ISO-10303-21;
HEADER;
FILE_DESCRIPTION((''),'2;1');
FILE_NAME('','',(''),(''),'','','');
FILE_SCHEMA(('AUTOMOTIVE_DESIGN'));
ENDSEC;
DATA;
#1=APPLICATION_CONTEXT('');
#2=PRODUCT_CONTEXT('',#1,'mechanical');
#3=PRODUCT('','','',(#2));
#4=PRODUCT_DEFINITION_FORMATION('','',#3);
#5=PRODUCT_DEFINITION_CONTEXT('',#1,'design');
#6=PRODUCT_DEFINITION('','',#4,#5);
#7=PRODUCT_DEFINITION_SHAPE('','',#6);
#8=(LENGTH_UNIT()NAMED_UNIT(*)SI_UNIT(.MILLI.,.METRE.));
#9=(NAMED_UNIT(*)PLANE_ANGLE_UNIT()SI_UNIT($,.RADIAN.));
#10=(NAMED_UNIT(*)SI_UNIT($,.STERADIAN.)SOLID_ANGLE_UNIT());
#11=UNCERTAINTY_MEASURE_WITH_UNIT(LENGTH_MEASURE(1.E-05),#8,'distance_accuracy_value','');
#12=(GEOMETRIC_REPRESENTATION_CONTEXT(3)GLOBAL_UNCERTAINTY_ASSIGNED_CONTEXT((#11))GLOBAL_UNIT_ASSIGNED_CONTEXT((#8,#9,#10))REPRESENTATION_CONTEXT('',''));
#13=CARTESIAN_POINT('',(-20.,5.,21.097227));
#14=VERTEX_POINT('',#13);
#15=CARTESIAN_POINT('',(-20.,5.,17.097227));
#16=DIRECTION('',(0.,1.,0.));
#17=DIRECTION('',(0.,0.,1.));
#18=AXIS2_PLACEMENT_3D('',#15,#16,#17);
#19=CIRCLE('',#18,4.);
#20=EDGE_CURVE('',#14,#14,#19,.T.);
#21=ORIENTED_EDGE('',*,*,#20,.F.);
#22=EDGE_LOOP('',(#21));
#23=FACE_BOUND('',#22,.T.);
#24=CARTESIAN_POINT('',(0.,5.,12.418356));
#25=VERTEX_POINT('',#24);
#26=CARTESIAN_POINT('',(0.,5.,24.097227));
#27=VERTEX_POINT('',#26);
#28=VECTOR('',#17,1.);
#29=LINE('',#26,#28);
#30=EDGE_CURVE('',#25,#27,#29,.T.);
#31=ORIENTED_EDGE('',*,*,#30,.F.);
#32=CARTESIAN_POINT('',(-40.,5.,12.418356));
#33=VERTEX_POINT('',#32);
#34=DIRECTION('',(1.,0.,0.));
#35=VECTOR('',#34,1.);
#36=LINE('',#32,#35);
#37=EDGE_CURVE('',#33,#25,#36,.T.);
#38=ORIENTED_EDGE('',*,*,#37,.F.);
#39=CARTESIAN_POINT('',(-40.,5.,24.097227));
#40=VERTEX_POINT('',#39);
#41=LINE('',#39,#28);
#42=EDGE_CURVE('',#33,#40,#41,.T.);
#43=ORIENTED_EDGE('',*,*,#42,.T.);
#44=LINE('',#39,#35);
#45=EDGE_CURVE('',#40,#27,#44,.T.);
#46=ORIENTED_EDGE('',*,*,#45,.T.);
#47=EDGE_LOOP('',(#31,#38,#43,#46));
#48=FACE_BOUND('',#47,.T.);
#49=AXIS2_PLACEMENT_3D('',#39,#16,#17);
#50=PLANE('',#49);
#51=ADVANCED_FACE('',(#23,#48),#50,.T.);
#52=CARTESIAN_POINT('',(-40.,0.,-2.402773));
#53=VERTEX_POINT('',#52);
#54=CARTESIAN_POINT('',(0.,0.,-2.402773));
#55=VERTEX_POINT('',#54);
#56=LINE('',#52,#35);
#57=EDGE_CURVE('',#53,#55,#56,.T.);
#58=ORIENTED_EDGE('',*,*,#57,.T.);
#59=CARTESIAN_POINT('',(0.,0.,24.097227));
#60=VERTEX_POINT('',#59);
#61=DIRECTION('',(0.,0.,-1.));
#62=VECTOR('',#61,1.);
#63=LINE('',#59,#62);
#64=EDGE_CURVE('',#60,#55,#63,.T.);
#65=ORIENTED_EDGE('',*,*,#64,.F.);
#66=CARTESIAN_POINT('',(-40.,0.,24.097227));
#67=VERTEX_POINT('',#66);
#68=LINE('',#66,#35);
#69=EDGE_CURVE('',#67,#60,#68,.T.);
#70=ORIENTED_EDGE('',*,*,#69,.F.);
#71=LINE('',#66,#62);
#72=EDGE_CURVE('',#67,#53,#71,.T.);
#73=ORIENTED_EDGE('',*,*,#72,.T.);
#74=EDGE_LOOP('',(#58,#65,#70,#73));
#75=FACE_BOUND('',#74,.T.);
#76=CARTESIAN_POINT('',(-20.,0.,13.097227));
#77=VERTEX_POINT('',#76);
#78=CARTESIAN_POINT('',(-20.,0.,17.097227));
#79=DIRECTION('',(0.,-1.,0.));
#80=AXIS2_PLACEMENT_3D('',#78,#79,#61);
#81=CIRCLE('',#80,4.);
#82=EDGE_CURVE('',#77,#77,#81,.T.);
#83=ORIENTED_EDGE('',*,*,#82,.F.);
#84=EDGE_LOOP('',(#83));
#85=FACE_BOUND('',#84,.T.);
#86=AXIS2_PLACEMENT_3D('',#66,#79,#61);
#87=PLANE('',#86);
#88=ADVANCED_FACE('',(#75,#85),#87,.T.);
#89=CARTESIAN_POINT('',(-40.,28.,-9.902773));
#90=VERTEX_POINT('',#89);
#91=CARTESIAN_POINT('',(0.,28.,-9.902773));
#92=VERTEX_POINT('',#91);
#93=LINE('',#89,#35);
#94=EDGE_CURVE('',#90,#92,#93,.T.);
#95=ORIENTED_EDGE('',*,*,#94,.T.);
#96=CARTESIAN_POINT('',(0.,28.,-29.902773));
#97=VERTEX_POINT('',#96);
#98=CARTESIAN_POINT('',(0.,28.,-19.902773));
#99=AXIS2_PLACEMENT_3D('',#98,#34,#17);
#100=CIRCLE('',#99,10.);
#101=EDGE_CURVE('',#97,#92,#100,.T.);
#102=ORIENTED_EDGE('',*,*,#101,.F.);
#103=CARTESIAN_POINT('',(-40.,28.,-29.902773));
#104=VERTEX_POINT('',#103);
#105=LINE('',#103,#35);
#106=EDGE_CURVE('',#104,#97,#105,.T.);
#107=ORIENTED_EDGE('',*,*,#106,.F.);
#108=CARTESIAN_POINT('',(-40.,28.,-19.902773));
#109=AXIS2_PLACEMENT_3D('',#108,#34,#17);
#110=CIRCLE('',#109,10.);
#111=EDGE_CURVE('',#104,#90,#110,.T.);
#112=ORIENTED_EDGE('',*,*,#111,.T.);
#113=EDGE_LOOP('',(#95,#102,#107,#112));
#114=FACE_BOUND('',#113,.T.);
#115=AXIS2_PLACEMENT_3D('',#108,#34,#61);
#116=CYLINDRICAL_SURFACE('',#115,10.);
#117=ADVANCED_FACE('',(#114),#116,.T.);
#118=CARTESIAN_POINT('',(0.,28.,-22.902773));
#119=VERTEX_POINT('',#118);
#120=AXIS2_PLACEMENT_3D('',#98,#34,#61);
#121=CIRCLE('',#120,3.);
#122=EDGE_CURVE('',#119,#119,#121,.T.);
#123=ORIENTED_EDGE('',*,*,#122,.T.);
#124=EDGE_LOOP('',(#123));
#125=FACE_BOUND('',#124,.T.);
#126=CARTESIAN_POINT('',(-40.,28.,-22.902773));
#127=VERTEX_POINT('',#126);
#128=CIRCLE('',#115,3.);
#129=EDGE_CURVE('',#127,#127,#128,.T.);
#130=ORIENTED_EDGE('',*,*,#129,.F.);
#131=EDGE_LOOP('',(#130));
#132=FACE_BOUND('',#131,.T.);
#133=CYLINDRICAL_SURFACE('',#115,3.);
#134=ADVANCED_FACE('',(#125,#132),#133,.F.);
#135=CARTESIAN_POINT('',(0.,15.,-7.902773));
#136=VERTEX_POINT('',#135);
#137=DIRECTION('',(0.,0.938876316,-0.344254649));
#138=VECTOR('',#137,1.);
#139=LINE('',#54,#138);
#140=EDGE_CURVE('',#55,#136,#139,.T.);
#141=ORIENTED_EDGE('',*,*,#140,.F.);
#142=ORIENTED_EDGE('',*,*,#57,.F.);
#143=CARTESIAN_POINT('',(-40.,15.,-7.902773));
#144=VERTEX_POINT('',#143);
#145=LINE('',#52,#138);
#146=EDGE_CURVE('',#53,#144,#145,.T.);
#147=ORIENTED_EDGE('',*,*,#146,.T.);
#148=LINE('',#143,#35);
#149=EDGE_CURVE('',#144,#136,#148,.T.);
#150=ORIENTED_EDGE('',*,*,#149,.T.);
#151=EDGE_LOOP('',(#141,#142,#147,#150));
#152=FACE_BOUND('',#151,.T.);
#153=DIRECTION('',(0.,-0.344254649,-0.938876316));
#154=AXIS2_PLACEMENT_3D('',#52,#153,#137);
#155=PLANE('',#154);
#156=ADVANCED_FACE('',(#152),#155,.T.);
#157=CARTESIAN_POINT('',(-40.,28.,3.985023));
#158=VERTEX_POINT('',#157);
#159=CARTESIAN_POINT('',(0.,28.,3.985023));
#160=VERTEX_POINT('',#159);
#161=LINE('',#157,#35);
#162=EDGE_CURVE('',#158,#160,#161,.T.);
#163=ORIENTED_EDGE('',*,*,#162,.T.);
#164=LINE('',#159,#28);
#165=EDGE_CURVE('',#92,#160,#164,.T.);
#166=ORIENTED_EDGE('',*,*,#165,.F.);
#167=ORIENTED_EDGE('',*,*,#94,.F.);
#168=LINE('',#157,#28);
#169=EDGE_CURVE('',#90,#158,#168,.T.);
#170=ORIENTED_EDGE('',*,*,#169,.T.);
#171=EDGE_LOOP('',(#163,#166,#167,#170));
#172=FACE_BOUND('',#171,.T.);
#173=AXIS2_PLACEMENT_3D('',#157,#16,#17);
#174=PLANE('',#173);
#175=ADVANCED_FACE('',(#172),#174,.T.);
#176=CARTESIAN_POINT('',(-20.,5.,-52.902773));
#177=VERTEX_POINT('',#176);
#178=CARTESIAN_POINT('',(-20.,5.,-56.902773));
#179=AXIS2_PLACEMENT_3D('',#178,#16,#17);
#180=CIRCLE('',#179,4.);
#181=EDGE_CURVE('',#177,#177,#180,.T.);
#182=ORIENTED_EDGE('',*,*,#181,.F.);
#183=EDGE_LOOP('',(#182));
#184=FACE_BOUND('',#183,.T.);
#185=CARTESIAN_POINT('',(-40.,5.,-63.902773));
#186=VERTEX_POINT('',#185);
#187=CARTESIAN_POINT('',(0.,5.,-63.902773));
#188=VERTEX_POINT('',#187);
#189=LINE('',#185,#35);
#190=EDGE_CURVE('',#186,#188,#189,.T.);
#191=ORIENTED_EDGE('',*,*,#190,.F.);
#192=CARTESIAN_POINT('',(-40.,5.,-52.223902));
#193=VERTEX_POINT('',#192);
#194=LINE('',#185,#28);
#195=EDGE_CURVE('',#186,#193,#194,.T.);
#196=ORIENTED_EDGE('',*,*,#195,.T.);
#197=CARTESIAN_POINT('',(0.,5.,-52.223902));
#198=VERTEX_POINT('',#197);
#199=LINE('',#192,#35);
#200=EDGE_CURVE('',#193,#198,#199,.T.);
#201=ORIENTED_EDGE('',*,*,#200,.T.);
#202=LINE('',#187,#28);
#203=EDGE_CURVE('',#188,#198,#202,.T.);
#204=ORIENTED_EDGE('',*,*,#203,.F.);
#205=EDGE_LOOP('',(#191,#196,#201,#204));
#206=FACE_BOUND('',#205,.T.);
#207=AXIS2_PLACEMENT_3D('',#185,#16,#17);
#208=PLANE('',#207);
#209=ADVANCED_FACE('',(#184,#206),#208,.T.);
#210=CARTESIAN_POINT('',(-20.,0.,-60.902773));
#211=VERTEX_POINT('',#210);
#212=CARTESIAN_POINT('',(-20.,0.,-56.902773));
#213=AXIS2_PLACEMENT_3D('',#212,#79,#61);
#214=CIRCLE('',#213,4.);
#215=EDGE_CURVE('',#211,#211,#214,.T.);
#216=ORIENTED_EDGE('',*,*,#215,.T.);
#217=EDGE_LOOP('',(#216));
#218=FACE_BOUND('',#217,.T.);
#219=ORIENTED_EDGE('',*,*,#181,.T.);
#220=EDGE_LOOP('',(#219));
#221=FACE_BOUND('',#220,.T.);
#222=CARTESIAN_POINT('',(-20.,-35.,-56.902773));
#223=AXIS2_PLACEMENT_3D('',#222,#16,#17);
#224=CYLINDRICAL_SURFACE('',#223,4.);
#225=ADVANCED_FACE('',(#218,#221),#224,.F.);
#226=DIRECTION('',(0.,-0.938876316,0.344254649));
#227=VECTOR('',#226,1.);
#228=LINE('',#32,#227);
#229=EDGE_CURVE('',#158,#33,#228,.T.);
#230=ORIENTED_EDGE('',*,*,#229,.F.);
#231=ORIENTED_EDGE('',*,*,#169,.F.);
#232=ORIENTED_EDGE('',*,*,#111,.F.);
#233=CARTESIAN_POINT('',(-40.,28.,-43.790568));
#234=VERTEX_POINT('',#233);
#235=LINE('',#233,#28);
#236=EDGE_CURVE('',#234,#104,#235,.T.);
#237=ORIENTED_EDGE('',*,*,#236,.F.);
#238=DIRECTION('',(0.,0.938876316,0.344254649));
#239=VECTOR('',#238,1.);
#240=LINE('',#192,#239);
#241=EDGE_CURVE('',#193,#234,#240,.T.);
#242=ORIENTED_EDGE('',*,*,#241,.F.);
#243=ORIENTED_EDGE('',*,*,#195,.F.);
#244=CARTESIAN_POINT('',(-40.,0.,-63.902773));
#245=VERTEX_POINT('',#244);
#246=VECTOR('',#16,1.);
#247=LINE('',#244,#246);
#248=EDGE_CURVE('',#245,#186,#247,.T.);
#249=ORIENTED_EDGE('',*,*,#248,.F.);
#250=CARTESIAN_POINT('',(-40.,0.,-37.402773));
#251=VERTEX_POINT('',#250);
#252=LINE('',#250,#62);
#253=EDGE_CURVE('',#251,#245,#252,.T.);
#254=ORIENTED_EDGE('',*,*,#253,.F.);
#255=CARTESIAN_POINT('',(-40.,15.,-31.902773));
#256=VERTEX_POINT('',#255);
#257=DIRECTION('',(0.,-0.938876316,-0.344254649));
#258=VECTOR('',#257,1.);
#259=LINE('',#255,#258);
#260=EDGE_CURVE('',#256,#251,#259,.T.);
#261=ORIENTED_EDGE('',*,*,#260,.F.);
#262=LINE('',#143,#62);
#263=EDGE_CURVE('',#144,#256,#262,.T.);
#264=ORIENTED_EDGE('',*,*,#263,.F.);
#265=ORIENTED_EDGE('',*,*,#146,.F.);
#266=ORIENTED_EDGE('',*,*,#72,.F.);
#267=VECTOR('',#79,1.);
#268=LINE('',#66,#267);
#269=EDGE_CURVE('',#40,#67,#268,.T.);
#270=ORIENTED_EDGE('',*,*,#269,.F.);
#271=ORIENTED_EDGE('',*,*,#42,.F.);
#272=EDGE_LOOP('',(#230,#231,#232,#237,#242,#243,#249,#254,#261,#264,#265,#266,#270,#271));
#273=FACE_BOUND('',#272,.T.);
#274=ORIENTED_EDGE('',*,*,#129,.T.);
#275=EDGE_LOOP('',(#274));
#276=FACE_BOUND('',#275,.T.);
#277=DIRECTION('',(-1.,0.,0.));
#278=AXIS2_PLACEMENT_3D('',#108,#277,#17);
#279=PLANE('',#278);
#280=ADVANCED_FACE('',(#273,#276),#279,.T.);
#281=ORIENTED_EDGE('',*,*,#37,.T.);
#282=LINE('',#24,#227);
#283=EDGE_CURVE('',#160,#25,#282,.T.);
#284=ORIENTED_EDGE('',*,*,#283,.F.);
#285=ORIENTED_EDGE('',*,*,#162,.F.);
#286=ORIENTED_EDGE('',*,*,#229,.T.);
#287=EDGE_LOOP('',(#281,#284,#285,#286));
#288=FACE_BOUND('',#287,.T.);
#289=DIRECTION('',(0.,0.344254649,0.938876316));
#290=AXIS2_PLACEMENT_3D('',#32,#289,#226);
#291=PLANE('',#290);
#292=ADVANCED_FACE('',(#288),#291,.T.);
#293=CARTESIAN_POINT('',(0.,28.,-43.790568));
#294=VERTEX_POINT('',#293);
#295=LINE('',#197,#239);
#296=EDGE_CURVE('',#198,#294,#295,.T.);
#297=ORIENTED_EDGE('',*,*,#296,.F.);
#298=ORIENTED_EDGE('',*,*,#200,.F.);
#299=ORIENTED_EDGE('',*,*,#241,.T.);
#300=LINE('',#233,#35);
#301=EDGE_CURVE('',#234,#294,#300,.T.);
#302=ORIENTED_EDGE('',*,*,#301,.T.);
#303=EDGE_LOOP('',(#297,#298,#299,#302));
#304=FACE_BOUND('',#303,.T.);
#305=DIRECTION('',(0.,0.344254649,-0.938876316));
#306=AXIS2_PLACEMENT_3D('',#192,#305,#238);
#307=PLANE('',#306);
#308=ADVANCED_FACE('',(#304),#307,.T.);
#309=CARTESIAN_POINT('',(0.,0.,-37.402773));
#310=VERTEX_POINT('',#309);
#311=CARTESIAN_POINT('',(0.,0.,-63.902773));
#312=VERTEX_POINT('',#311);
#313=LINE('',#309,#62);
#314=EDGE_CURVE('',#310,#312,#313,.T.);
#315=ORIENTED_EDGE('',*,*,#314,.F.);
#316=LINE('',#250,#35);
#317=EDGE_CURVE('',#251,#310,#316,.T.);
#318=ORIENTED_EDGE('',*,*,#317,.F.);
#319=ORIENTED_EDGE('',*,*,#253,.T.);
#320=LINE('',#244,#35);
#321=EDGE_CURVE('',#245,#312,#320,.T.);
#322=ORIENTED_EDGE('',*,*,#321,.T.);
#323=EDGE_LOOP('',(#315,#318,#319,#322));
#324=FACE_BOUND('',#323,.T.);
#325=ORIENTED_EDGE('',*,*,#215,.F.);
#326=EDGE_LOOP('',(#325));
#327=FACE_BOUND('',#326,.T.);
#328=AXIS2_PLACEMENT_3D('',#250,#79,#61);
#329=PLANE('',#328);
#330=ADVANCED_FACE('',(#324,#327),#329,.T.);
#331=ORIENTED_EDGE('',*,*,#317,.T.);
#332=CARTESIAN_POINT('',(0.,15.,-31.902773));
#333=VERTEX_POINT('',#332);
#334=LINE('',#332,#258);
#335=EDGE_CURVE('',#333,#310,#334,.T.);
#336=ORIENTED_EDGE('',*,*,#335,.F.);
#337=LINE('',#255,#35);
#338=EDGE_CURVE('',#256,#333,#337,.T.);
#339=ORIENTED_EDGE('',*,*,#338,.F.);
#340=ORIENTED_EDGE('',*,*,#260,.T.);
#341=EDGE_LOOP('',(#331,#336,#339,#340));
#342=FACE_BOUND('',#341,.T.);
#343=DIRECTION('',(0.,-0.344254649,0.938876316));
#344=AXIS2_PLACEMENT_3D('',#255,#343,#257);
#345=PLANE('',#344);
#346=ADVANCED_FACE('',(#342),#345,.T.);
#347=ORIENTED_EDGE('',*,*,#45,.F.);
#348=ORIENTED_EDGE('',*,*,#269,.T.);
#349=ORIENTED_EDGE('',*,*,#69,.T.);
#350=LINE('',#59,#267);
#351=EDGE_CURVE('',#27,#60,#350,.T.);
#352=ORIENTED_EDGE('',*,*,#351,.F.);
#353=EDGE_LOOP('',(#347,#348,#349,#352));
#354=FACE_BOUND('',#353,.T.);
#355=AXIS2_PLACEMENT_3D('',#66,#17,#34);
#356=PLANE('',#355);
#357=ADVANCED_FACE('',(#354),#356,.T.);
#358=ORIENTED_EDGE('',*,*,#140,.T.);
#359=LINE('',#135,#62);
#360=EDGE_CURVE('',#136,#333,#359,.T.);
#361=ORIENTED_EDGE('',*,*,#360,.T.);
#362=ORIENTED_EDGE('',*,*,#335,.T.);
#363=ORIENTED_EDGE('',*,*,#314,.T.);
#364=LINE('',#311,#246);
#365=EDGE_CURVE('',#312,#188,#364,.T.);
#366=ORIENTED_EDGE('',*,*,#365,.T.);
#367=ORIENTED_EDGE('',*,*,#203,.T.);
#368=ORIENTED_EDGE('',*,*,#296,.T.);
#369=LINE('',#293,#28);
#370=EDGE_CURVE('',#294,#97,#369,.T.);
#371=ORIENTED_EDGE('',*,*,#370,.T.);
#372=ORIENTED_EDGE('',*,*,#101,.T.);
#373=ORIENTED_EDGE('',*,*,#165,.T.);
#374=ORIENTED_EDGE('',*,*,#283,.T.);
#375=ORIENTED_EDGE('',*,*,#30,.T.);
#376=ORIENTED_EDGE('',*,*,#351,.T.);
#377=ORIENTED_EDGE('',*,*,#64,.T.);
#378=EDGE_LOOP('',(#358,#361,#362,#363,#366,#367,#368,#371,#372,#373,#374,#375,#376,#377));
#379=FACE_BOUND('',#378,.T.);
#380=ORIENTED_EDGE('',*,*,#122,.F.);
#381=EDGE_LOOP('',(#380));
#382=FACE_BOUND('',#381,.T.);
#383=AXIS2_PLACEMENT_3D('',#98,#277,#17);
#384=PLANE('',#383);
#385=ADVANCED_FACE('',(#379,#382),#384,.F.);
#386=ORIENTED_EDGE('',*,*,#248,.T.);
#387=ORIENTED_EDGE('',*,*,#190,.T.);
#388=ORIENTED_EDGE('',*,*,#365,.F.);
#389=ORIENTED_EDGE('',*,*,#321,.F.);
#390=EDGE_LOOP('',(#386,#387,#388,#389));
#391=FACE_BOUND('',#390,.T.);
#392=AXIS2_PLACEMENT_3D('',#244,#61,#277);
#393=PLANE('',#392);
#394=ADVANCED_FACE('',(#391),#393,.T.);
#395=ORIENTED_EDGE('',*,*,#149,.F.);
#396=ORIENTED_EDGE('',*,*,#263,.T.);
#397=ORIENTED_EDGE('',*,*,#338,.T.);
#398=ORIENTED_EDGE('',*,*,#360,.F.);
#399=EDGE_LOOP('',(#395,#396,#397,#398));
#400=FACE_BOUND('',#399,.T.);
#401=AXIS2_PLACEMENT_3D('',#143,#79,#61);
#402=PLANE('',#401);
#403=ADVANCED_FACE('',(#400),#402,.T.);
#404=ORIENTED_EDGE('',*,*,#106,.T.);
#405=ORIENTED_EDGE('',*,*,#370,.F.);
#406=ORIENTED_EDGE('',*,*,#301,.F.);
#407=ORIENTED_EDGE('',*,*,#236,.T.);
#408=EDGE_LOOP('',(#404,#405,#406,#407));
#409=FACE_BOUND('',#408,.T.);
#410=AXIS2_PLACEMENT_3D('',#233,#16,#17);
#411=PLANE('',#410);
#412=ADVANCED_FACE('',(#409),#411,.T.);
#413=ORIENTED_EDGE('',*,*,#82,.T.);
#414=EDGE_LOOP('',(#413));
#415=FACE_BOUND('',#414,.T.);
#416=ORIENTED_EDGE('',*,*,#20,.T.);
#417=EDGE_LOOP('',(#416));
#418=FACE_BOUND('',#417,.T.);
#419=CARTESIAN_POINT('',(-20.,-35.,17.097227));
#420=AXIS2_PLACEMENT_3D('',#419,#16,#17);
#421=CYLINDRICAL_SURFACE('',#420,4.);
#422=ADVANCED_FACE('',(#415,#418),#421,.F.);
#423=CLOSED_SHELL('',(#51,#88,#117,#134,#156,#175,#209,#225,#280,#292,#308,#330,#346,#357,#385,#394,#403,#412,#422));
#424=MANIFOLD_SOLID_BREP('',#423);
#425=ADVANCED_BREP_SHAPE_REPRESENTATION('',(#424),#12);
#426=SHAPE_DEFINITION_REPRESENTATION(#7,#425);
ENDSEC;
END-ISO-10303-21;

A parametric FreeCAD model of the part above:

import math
import FreeCAD as App
import Part
import Sketcher

doc = App.newDocument("Part")
params = doc.addObject("Spreadsheet::Sheet", "Params")
for row, (alias, value) in enumerate([
    ("sketch1_diameter", "6 mm"),
    ("sketch1_radius", "10 mm"),
    ("sketch1_width", "5 mm"),
    ("sketch1_height", "24 mm"),
    ("sketch1_height2", "26.5 mm"),
    ("pad1_length", "40 mm"),
    ("sketch2_diameter", "8 mm"),
    ("pocket1_length", "40 mm"),
], start=1):
    params.set(f"A{row}", alias)
    params.set(f"B{row}", "=" + value)
    params.setAlias(f"B{row}", alias)

body = doc.addObject("PartDesign::Body", "Body")

sketch1 = body.newObject("Sketcher::SketchObject", "Sketch")
sketch1.AttachmentSupport = (doc.getObject("YZ_Plane"), [""])
sketch1.MapMode = "FlatFace"
sketch1.addGeometry([
    Part.LineSegment(App.Vector(5, 24.097227, 0), App.Vector(0, 24.097227, 0)),
    Part.LineSegment(App.Vector(0, 24.097227, 0), App.Vector(0, -2.402773, 0)),
    Part.LineSegment(App.Vector(0, -2.402773, 0), App.Vector(15, -7.902773, 0)),
    Part.LineSegment(App.Vector(15, -7.902773, 0), App.Vector(15, -31.902773, 0)),
    Part.LineSegment(App.Vector(15, -31.902773, 0), App.Vector(0, -37.402773, 0)),
    Part.LineSegment(App.Vector(0, -37.402773, 0), App.Vector(0, -63.902773, 0)),
    Part.LineSegment(App.Vector(0, -63.902773, 0), App.Vector(5, -63.902773, 0)),
    Part.LineSegment(App.Vector(5, -63.902773, 0), App.Vector(5, -52.223902, 0)),
    Part.LineSegment(App.Vector(5, -52.223902, 0), App.Vector(28, -43.790568, 0)),
    Part.LineSegment(App.Vector(28, -43.790568, 0), App.Vector(28, -29.902773, 0)),
    Part.ArcOfCircle(Part.Circle(App.Vector(28, -19.902773, 0), App.Vector(0, 0, 1), 10), math.radians(-90), math.radians(90)),
    Part.LineSegment(App.Vector(28, -9.902773, 0), App.Vector(28, 3.985023, 0)),
    Part.LineSegment(App.Vector(28, 3.985023, 0), App.Vector(5, 12.418356, 0)),
    Part.LineSegment(App.Vector(5, 12.418356, 0), App.Vector(5, 24.097227, 0)),
    Part.Circle(App.Vector(28, -19.902773, 0), App.Vector(0, 0, 1), 3),
], False)
sketch1.addConstraint([
    Sketcher.Constraint("Coincident", 0, 2, 1, 1),
    Sketcher.Constraint("Coincident", 1, 2, 2, 1),
    Sketcher.Constraint("Coincident", 2, 2, 3, 1),
    Sketcher.Constraint("Coincident", 3, 2, 4, 1),
    Sketcher.Constraint("Coincident", 4, 2, 5, 1),
    Sketcher.Constraint("Coincident", 5, 2, 6, 1),
    Sketcher.Constraint("Coincident", 6, 2, 7, 1),
    Sketcher.Constraint("Coincident", 7, 2, 8, 1),
    Sketcher.Constraint("Coincident", 8, 2, 9, 1),
    Sketcher.Constraint("Coincident", 9, 2, 10, 1),
    Sketcher.Constraint("Coincident", 10, 2, 11, 1),
    Sketcher.Constraint("Coincident", 11, 2, 12, 1),
    Sketcher.Constraint("Coincident", 12, 2, 13, 1),
    Sketcher.Constraint("Coincident", 13, 2, 0, 1),
    Sketcher.Constraint("Horizontal", 0),
    Sketcher.Constraint("Vertical", 1),
    Sketcher.Constraint("Vertical", 3),
    Sketcher.Constraint("Vertical", 5),
    Sketcher.Constraint("Horizontal", 6),
    Sketcher.Constraint("Vertical", 7),
    Sketcher.Constraint("Vertical", 9),
    Sketcher.Constraint("Vertical", 11),
    Sketcher.Constraint("Vertical", 13),
    Sketcher.Constraint("Coincident", 14, 3, 10, 3),
    Sketcher.Constraint("PointOnObject", 0, 2, -2),
    Sketcher.Constraint("PointOnObject", 4, 2, -2),
    Sketcher.Constraint("Parallel", 4, 8),
    Sketcher.Constraint("Parallel", 2, 12),
    Sketcher.Constraint("Vertical", 14, 3, 8, 2),
    Sketcher.Constraint("Vertical", 9, 2, 10, 2),
    Sketcher.Constraint("Vertical", 7, 2, 12, 2),
    Sketcher.Constraint("Equal", 1, 5),
    Sketcher.Constraint("Equal", 9, 11),
    Sketcher.Constraint("Equal", 7, 13),
    Sketcher.Constraint("Equal", 2, 4),
    Sketcher.Constraint("Diameter", 14, 6.0),
    Sketcher.Constraint("Radius", 10, 10.0),
    Sketcher.Constraint("DistanceX", 0, 2, 0, 1, 5.0),
    Sketcher.Constraint("DistanceY", 3, 2, 3, 1, 24.0),
    Sketcher.Constraint("DistanceY", 1, 2, 1, 1, 26.5),
    Sketcher.Constraint("DistanceX", -1, 1, 10, 3, 28.0),
    Sketcher.Constraint("DistanceX", -1, 1, 2, 2, 15.0),
    Sketcher.Constraint("DistanceY", 10, 3, 0, 2, 44.0),
    Sketcher.Constraint("DistanceY", 7, 1, 7, 2, 11.678871),
    Sketcher.Constraint("DistanceY", 7, 2, -1, 1, 52.223902),
])
sketch1.setExpression("Constraints[35]", "Params.sketch1_diameter")
sketch1.setExpression("Constraints[36]", "Params.sketch1_radius")
sketch1.setExpression("Constraints[37]", "Params.sketch1_width")
sketch1.setExpression("Constraints[38]", "Params.sketch1_height")
sketch1.setExpression("Constraints[39]", "Params.sketch1_height2")
pad1 = body.newObject("PartDesign::Pad", "Pad")
pad1.Profile = sketch1
pad1.setExpression("Length", "Params.pad1_length")
pad1.Reversed = True

sketch2 = body.newObject("Sketcher::SketchObject", "Sketch001")
sketch2.AttachmentSupport = (doc.getObject("XZ_Plane"), [""])
sketch2.MapMode = "FlatFace"
sketch2.AttachmentOffset = App.Placement(App.Vector(0, 0, -5), App.Rotation())
sketch2.addGeometry([
    Part.Circle(App.Vector(-20, 17.097227, 0), App.Vector(0, 0, 1), 4),
    Part.Circle(App.Vector(-20, -56.902773, 0), App.Vector(0, 0, 1), 4),
], False)
sketch2.addConstraint([
    Sketcher.Constraint("Equal", 0, 1),
    Sketcher.Constraint("Vertical", 0, 3, 1, 3),
    Sketcher.Constraint("Diameter", 0, 8.0),
    Sketcher.Constraint("DistanceX", 0, 3, -1, 1, 20.0),
    Sketcher.Constraint("DistanceY", 1, 3, 0, 3, 74.0),
    Sketcher.Constraint("DistanceY", -1, 1, 0, 3, 17.097227),
])
sketch2.setExpression("Constraints[2]", "Params.sketch2_diameter")
pocket1 = body.newObject("PartDesign::Pocket", "Pocket")
pocket1.Profile = sketch2
pocket1.setExpression("Length", "Params.pocket1_length")
pocket1.Reversed = True

doc.recompute()
